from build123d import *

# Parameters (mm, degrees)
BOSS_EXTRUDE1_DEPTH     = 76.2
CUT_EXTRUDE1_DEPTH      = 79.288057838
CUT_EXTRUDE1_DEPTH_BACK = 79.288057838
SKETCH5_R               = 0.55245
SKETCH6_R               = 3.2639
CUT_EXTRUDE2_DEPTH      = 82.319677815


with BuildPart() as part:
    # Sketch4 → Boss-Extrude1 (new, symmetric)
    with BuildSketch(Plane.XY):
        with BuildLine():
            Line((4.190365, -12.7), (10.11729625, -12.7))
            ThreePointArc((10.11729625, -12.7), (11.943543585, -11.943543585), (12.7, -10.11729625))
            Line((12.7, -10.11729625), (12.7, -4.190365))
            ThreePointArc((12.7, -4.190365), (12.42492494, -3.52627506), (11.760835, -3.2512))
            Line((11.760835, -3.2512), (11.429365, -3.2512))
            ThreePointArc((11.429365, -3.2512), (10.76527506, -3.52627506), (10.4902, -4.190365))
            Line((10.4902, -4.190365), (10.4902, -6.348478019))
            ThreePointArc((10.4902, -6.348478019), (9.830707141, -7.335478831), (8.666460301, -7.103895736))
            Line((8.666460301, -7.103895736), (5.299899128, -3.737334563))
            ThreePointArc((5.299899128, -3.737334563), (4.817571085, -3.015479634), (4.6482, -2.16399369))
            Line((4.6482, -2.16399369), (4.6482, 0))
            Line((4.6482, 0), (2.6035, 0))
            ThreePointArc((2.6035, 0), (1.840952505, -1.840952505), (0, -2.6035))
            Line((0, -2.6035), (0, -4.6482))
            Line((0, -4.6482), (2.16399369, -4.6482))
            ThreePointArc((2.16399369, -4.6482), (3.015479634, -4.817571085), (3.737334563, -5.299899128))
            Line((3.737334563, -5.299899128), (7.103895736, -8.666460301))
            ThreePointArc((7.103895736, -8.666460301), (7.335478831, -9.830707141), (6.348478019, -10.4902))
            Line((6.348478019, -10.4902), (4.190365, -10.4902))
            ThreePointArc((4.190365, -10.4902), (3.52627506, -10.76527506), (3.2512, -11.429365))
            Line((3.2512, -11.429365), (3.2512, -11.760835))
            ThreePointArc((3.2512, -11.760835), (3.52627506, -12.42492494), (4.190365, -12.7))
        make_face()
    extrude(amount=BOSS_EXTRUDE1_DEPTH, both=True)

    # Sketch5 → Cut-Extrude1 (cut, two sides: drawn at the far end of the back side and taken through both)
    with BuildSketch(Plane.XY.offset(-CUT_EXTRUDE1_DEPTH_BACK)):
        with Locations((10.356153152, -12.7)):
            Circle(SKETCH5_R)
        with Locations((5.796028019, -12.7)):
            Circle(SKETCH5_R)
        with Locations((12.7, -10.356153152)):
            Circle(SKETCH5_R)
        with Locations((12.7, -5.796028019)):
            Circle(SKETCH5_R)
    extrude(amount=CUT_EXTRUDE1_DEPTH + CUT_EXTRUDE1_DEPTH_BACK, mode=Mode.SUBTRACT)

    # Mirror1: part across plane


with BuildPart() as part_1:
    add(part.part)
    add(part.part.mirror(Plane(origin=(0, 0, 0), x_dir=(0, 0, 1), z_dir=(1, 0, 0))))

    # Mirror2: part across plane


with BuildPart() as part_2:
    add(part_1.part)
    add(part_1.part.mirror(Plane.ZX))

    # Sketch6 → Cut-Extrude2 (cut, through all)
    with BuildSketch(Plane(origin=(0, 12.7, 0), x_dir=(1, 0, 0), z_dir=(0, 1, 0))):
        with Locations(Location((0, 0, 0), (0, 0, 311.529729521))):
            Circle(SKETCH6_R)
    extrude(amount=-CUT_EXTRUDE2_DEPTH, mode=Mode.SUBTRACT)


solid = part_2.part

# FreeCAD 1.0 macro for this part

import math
import FreeCAD as App
import Part
import Sketcher

V = App.Vector
Q = App.Units.Quantity

doc = App.newDocument("Part")
body = doc.addObject("PartDesign::Body", "Body")

sketch1 = body.newObject("Sketcher::SketchObject", "Sketch")
sketch1.AttachmentSupport = (doc.getObject("XY_Plane"), [""])
sketch1.MapMode = "FlatFace"
sketch1.addGeometry([
    Part.LineSegment(V(4.19, -12.7, 0), V(10.12, -12.7, 0)),
    Part.ArcOfCircle(Part.Circle(V(10.12, -10.12, 0), V(0, 0, 1), 2.58), math.radians(-90), math.radians(0)),
    Part.LineSegment(V(12.7, -10.12, 0), V(12.7, -4.19, 0)),
    Part.ArcOfCircle(Part.Circle(V(11.76, -4.19, 0), V(0, 0, 1), 0.94), math.radians(0), math.radians(90)),
    Part.LineSegment(V(11.76, -3.25, 0), V(11.43, -3.25, 0)),
    Part.ArcOfCircle(Part.Circle(V(11.43, -4.19, 0), V(0, 0, 1), 0.94), math.radians(90), math.radians(180)),
    Part.LineSegment(V(10.49, -4.19, 0), V(10.49, -6.35, 0)),
    Part.ArcOfCircle(Part.Circle(V(9.42, -6.35, 0), V(0, 0, 1), 1.07), math.radians(-135), math.radians(0)),
    Part.LineSegment(V(8.67, -7.1, 0), V(5.3, -3.74, 0)),
    Part.ArcOfCircle(Part.Circle(V(6.87, -2.16, 0), V(0, 0, 1), 2.23), math.radians(-180), math.radians(-135)),
    Part.LineSegment(V(4.65, -2.16, 0), V(4.65, 0, 0)),
    Part.LineSegment(V(4.65, 0, 0), V(2.6, 0, 0)),
    Part.ArcOfCircle(Part.Circle(V(0, 0, 0), V(0, 0, 1), 2.6), math.radians(-90), math.radians(0)),
    Part.LineSegment(V(0, -2.6, 0), V(0, -4.65, 0)),
    Part.LineSegment(V(0, -4.65, 0), V(2.16, -4.65, 0)),
    Part.ArcOfCircle(Part.Circle(V(2.16, -6.87, 0), V(0, 0, 1), 2.23), math.radians(45), math.radians(90)),
    Part.LineSegment(V(3.74, -5.3, 0), V(7.1, -8.67, 0)),
    Part.ArcOfCircle(Part.Circle(V(6.35, -9.42, 0), V(0, 0, 1), 1.07), math.radians(-90), math.radians(45)),
    Part.LineSegment(V(6.35, -10.49, 0), V(4.19, -10.49, 0)),
    Part.ArcOfCircle(Part.Circle(V(4.19, -11.43, 0), V(0, 0, 1), 0.94), math.radians(90), math.radians(180)),
    Part.LineSegment(V(3.25, -11.43, 0), V(3.25, -11.76, 0)),
    Part.ArcOfCircle(Part.Circle(V(4.19, -11.76, 0), V(0, 0, 1), 0.94), math.radians(-180), math.radians(-90)),
], False)
sketch1.addConstraint([
    Sketcher.Constraint("Tangent", 0, 2, 1, 1),
    Sketcher.Constraint("Tangent", 1, 2, 2, 1),
    Sketcher.Constraint("Tangent", 2, 2, 3, 1),
    Sketcher.Constraint("Tangent", 3, 2, 4, 1),
    Sketcher.Constraint("Tangent", 4, 2, 5, 1),
    Sketcher.Constraint("Tangent", 5, 2, 6, 1),
    Sketcher.Constraint("Tangent", 6, 2, 7, 2),
    Sketcher.Constraint("Tangent", 7, 1, 8, 1),
    Sketcher.Constraint("Tangent", 8, 2, 9, 2),
    Sketcher.Constraint("Tangent", 9, 1, 10, 1),
    Sketcher.Constraint("Coincident", 10, 2, 11, 1),
    Sketcher.Constraint("Coincident", 11, 2, 12, 2),
    Sketcher.Constraint("Coincident", 12, 1, 13, 1),
    Sketcher.Constraint("Coincident", 13, 2, 14, 1),
    Sketcher.Constraint("Tangent", 14, 2, 15, 2),
    Sketcher.Constraint("Tangent", 15, 1, 16, 1),
    Sketcher.Constraint("Tangent", 16, 2, 17, 2),
    Sketcher.Constraint("Tangent", 17, 1, 18, 1),
    Sketcher.Constraint("Tangent", 18, 2, 19, 1),
    Sketcher.Constraint("Tangent", 19, 2, 20, 1),
    Sketcher.Constraint("Tangent", 20, 2, 21, 1),
    Sketcher.Constraint("Tangent", 21, 2, 0, 1),
    Sketcher.Constraint("Horizontal", 0),
    Sketcher.Constraint("Vertical", 2),
    Sketcher.Constraint("Horizontal", 4),
    Sketcher.Constraint("Vertical", 6),
    Sketcher.Constraint("Vertical", 10),
    Sketcher.Constraint("Horizontal", 11),
    Sketcher.Constraint("Vertical", 13),
    Sketcher.Constraint("Horizontal", 14),
    Sketcher.Constraint("Horizontal", 18),
    Sketcher.Constraint("Vertical", 20),
    Sketcher.Constraint("Coincident", 12, 3, -1, 1),
    Sketcher.Constraint("Equal", 3, 5),
    Sketcher.Constraint("Equal", 9, 15),
    Sketcher.Constraint("Equal", 7, 17),
    Sketcher.Constraint("Equal", 5, 19),
    Sketcher.Constraint("Equal", 19, 21),
    Sketcher.Constraint("PointOnObject", 10, 2, -1),
    Sketcher.Constraint("PointOnObject", 12, 1, -2),
    Sketcher.Constraint("Parallel", 8, 16),
    Sketcher.Constraint("Equal", 0, 2),
    Sketcher.Constraint("Equal", 18, 6),
    Sketcher.Constraint("Equal", 14, 10),
    Sketcher.Constraint("Equal", 11, 13),
    Sketcher.Constraint("Equal", 4, 20),
    Sketcher.Constraint("Equal", 8, 16),
    Sketcher.Constraint("DistanceY", 0, 2, -1, 1, Q("0.5 in")),
    Sketcher.Constraint("Radius", 9, Q("0.0876 in")),
    Sketcher.Constraint("Radius", 12, Q("0.1025 in")),
    Sketcher.Constraint("DistanceX", 9, 1, 5, 2, Q("0.23 in")),
    Sketcher.Constraint("DistanceX", 11, 2, 11, 1, Q("0.0805 in")),
    Sketcher.Constraint("DistanceY", 3, 2, -1, 1, Q("0.128 in")),
    Sketcher.Constraint("Radius", 7, 1.068322),
    Sketcher.Constraint("DistanceX", 17, 3, 7, 3, Q("0.121 in")),
    Sketcher.Constraint("Radius", 1, 2.582704),
    Sketcher.Constraint("Radius", 3, 0.939165),
])
pad1 = body.newObject("PartDesign::Pad", "Pad")
pad1.Profile = sketch1
pad1.Length = Q("6 in")
pad1.Midplane = True

sketch2 = body.newObject("Sketcher::SketchObject", "Sketch001")
sketch2.AttachmentSupport = (doc.getObject("XY_Plane"), [""])
sketch2.MapMode = "FlatFace"
sketch2.addGeometry([
    Part.Circle(V(10.4, -12.7, 0), V(0, 0, 1), 0.6),
    Part.Circle(V(5.8, -12.7, 0), V(0, 0, 1), 0.6),
    Part.Circle(V(12.7, -10.4, 0), V(0, 0, 1), 0.6),
    Part.Circle(V(12.7, -5.8, 0), V(0, 0, 1), 0.6),
], False)
sketch2.addConstraint([
    Sketcher.Constraint("Equal", 0, 1),
    Sketcher.Constraint("Equal", 1, 2),
    Sketcher.Constraint("Equal", 2, 3),
    Sketcher.Constraint("Horizontal", 0, 3, 1, 3),
    Sketcher.Constraint("Vertical", 2, 3, 3, 3),
    Sketcher.Constraint("Diameter", 0, Q("0.0435 in")),
    Sketcher.Constraint("DistanceY", 0, 3, -1, 1, Q("0.5 in")),
    Sketcher.Constraint("DistanceX", -1, 1, 2, 3, Q("0.5 in")),
    Sketcher.Constraint("DistanceX", -1, 1, 1, 3, 5.796028),
    Sketcher.Constraint("DistanceY", 3, 3, -1, 1, 5.796028),
    Sketcher.Constraint("DistanceX", -1, 1, 0, 3, 10.356153),
    Sketcher.Constraint("DistanceY", 2, 3, -1, 1, 10.356153),
])
pocket1 = body.newObject("PartDesign::Pocket", "Pocket")
pocket1.Profile = sketch2
pocket1.Type = "ThroughAll"
pocket1.Midplane = True
body2 = doc.addObject("PartDesign::Body", "Body001")
doc.recompute()

body2.BaseFeature = body
doc.recompute()

mirroring = doc.addObject("Part::Mirroring", "Mirroring")
mirroring.Source = body
mirroring.Base = V(0, 0, 0)
mirroring.Normal = V(1, 0, 0)
body3 = doc.addObject("PartDesign::Body", "Body002")
body3.BaseFeature = mirroring
boolean = body2.newObject("PartDesign::Boolean", "Boolean")
boolean.Type = "Fuse"
boolean.addObjects([body3])
doc.recompute()
body4 = doc.addObject("PartDesign::Body", "Body003")
doc.recompute()

body4.BaseFeature = body2
doc.recompute()

mirroring2 = doc.addObject("Part::Mirroring", "Mirroring001")
mirroring2.Source = body2
mirroring2.Base = V(0, 0, 0)
mirroring2.Normal = V(0, 1, 0)
body5 = doc.addObject("PartDesign::Body", "Body004")
body5.BaseFeature = mirroring2
boolean2 = body4.newObject("PartDesign::Boolean", "Boolean001")
boolean2.Type = "Fuse"
boolean2.addObjects([body5])
doc.recompute()

sketch3 = body4.newObject("Sketcher::SketchObject", "Sketch002")
sketch3.AttachmentSupport = (doc.getObject("XZ_Plane003"), [""])
sketch3.MapMode = "FlatFace"
sketch3.AttachmentOffset = App.Placement(V(0, 0, -0.5 * 25.4), App.Rotation())
sketch3.addGeometry(Part.Circle(V(0, 0, 0), V(0, 0, 1), 3.3), False)
sketch3.addConstraint([
    Sketcher.Constraint("Coincident", 0, 3, -1, 1),
    Sketcher.Constraint("Diameter", 0, Q("0.257 in")),
])
pocket2 = body4.newObject("PartDesign::Pocket", "Pocket001")
pocket2.Profile = sketch3
pocket2.Type = "ThroughAll"
pocket2.Reversed = True
mirroring.Visibility = False
mirroring2.Visibility = False

doc.recompute()
